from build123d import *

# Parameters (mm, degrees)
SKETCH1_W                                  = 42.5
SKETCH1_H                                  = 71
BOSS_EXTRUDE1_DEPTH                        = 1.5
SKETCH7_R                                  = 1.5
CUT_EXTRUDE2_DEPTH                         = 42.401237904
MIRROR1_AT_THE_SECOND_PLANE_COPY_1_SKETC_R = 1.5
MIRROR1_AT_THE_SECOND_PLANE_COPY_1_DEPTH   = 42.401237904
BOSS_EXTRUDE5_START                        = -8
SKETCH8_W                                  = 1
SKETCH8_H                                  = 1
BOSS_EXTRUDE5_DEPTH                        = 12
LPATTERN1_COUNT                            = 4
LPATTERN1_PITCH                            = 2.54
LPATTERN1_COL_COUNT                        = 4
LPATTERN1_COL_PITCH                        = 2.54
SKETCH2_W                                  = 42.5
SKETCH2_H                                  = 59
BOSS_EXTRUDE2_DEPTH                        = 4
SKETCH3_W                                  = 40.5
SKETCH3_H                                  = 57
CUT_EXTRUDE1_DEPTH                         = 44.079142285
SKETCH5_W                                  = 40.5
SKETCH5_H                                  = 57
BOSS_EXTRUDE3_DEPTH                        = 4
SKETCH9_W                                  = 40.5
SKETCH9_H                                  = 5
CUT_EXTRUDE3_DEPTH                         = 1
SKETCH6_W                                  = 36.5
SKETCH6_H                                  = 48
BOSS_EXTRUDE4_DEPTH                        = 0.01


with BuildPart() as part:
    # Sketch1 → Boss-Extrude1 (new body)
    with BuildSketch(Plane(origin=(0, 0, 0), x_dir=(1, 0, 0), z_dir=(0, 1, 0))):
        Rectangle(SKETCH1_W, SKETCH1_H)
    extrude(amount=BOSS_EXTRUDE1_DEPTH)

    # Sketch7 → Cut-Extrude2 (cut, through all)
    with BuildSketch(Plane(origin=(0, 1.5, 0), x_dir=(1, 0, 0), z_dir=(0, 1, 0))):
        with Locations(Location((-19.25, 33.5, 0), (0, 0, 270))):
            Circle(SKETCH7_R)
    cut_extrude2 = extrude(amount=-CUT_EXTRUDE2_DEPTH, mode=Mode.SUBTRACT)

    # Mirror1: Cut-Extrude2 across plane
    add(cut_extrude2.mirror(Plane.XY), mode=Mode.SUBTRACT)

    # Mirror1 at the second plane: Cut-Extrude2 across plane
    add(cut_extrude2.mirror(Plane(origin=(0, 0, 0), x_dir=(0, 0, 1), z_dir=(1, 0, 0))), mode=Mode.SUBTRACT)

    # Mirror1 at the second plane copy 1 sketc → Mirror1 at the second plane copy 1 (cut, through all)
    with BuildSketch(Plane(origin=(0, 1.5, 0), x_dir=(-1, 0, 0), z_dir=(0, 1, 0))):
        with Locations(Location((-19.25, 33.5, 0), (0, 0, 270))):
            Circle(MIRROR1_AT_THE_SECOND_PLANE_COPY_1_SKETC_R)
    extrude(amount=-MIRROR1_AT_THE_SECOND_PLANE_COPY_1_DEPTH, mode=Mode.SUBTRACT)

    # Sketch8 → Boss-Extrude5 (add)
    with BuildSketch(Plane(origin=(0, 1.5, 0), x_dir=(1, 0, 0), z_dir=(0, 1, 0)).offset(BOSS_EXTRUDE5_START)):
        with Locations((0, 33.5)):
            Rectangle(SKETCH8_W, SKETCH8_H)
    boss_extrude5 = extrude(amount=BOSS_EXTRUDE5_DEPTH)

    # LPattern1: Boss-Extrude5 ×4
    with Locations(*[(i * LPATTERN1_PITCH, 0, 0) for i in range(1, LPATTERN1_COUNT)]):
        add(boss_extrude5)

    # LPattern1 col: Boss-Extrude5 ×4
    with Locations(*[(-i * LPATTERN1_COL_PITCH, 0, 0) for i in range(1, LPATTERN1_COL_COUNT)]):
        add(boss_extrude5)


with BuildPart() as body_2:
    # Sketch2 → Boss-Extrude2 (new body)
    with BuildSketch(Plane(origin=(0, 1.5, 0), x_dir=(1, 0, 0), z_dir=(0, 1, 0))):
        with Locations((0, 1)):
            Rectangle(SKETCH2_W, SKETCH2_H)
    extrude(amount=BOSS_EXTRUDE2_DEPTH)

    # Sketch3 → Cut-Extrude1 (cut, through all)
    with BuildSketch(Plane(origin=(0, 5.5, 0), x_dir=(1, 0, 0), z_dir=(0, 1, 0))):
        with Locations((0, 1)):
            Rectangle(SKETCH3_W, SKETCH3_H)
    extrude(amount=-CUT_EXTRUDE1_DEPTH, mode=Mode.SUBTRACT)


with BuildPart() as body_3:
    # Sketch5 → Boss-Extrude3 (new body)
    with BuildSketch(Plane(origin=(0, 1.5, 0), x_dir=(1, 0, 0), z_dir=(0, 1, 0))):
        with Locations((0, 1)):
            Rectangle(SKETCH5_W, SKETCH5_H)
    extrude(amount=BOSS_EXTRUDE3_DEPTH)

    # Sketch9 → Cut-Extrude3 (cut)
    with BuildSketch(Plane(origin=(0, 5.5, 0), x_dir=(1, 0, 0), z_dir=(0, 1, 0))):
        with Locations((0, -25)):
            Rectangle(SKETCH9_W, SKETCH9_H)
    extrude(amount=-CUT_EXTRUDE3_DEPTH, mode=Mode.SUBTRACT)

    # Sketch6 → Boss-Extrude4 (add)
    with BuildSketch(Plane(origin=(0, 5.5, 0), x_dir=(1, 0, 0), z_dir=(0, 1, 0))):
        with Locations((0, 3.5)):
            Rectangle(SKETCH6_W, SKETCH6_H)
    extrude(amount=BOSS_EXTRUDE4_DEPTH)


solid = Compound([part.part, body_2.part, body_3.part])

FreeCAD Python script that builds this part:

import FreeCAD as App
import Part
import Sketcher
from FreeCAD import Vector


def add_polygon(sketch, points):
    """Adds a closed chain of lines whose ends are joined by coincident constraints."""
    first, n = sketch.GeometryCount, len(points)
    for a, b in zip(points, points[1:] + points[:1]):
        sketch.addGeometry(Part.LineSegment(App.Vector(*a, 0), App.Vector(*b, 0)), False)
    for i in range(n):
        sketch.addConstraint(Sketcher.Constraint("Coincident", first + i, 2, first + (i + 1) % n, 1))

doc = App.newDocument("Part")
body = doc.addObject("PartDesign::Body", "Body")

sketch1 = body.newObject("Sketcher::SketchObject", "Sketch")
sketch1.AttachmentSupport = (doc.getObject("XZ_Plane"), [""])
sketch1.MapMode = "FlatFace"
add_polygon(sketch1, [(-21, -36), (-21, 36), (21, 36), (21, -36)])
sketch1.addConstraint([
    Sketcher.Constraint("Vertical", 0),
    Sketcher.Constraint("Horizontal", 1),
    Sketcher.Constraint("Vertical", 2),
    Sketcher.Constraint("Horizontal", 3),
    Sketcher.Constraint("Symmetric", 0, 2, 2, 2, -1, 1),
    Sketcher.Constraint("DistanceY", 0, 1, 0, 2, 71.0),
    Sketcher.Constraint("DistanceX", 1, 1, 1, 2, 42.5),
])
pad1 = body.newObject("PartDesign::Pad", "Pad")
pad1.Profile = sketch1
pad1.Length = 1.5
pad1.Reversed = True

sketch2 = body.newObject("Sketcher::SketchObject", "Sketch001")
sketch2.AttachmentSupport = (doc.getObject("XZ_Plane"), [""])
sketch2.MapMode = "FlatFace"
sketch2.AttachmentOffset = App.Placement(Vector(0, 0, -1.5), App.Rotation())
sketch2.addGeometry(Part.Circle(Vector(-19.2, -33.5, 0), Vector(0, 0, 1), 1.5), False)
sketch2.addConstraint([
    Sketcher.Constraint("Diameter", 0, 3.0),
    Sketcher.Constraint("DistanceY", 0, 3, -1, 1, 33.5),
    Sketcher.Constraint("DistanceX", 0, 3, -1, 1, 19.25),
])
pocket1 = body.newObject("PartDesign::Pocket", "Pocket")
pocket1.Profile = sketch2
pocket1.Type = "ThroughAll"
pocket1.Reversed = True
doc.recompute()

mirrored = body.newObject("PartDesign::Mirrored", "Mirrored")
mirrored.Originals = [pocket1]
mirrored.MirrorPlane = (doc.getObject("XY_Plane"), [""])
body.Tip = mirrored
doc.recompute()

mirrored2 = body.newObject("PartDesign::Mirrored", "Mirrored001")
mirrored2.Originals = [pocket1]
mirrored2.MirrorPlane = (doc.getObject("YZ_Plane"), [""])
body.Tip = mirrored2

sketch3 = body.newObject("Sketcher::SketchObject", "Sketch002")
sketch3.AttachmentSupport = (doc.getObject("XZ_Plane"), [""])
sketch3.MapMode = "FlatFace"
sketch3.AttachmentOffset = App.Placement(Vector(0, 0, -1.5), App.Rotation())
sketch3.addGeometry(Part.Circle(Vector(19.2, 33.5, 0), Vector(0, 0, 1), 1.5), False)
sketch3.addConstraint([
    Sketcher.Constraint("Diameter", 0, 3.0),
    Sketcher.Constraint("DistanceY", -1, 1, 0, 3, 33.5),
    Sketcher.Constraint("DistanceX", -1, 1, 0, 3, 19.25),
])
pocket2 = body.newObject("PartDesign::Pocket", "Pocket001")
pocket2.Profile = sketch3
pocket2.Type = "ThroughAll"
pocket2.Reversed = True

sketch4 = body.newObject("Sketcher::SketchObject", "Sketch003")
sketch4.AttachmentSupport = (doc.getObject("XZ_Plane"), [""])
sketch4.MapMode = "FlatFace"
sketch4.AttachmentOffset = App.Placement(Vector(0, 0, 6.5), App.Rotation())
add_polygon(sketch4, [(-0.5, -34), (-0.5, -33), (0.5, -33), (0.5, -34)])
sketch4.addConstraint([
    Sketcher.Constraint("Vertical", 0),
    Sketcher.Constraint("Horizontal", 1),
    Sketcher.Constraint("Vertical", 2),
    Sketcher.Constraint("Horizontal", 3),
    Sketcher.Constraint("Equal", 3, 0),
    Sketcher.Constraint("DistanceX", 1, 1, 1, 2, 1.0),
    Sketcher.Constraint("DistanceY", 0, 2, -1, 1, 33.0),
    Sketcher.Constraint("DistanceX", 0, 2, -1, 1, 0.5),
])
pad2 = body.newObject("PartDesign::Pad", "Pad001")
pad2.Profile = sketch4
pad2.Length = 12
pad2.Reversed = True
doc.recompute()

linearpattern = body.newObject("PartDesign::LinearPattern", "LinearPattern")
linearpattern.Originals = [pad2]
linearpattern.Direction = (doc.getObject("X_Axis"), [""])
linearpattern.Mode = "offset"
linearpattern.Offset = 2.54
linearpattern.Occurrences = 4
body.Tip = linearpattern
doc.recompute()

linearpattern2 = body.newObject("PartDesign::LinearPattern", "LinearPattern001")
linearpattern2.Originals = [pad2]
linearpattern2.Direction = (doc.getObject("X_Axis"), [""])
linearpattern2.Mode = "offset"
linearpattern2.Offset = 2.54
linearpattern2.Occurrences = 4
linearpattern2.Reversed = True
body.Tip = linearpattern2
body2 = doc.addObject("PartDesign::Body", "Body001")

sketch5 = body2.newObject("Sketcher::SketchObject", "Sketch004")
sketch5.AttachmentSupport = (doc.getObject("XZ_Plane001"), [""])
sketch5.MapMode = "FlatFace"
sketch5.AttachmentOffset = App.Placement(Vector(0, 0, -1.5), App.Rotation())
add_polygon(sketch5, [(-21, -30), (-21, 28), (21, 28), (21, -30)])
sketch5.addConstraint([
    Sketcher.Constraint("Vertical", 0),
    Sketcher.Constraint("Horizontal", 1),
    Sketcher.Constraint("Vertical", 2),
    Sketcher.Constraint("Horizontal", 3),
    Sketcher.Constraint("DistanceY", 0, 1, 0, 2, 59.0),
    Sketcher.Constraint("DistanceX", 1, 1, 1, 2, 42.5),
    Sketcher.Constraint("DistanceY", -1, 1, 0, 2, 28.5),
    Sketcher.Constraint("DistanceX", 0, 2, -1, 1, 21.25),
])
pad3 = body2.newObject("PartDesign::Pad", "Pad002")
pad3.Profile = sketch5
pad3.Length = 4
pad3.Reversed = True

sketch6 = body2.newObject("Sketcher::SketchObject", "Sketch005")
sketch6.AttachmentSupport = (doc.getObject("XZ_Plane001"), [""])
sketch6.MapMode = "FlatFace"
sketch6.AttachmentOffset = App.Placement(Vector(0, 0, -5.5), App.Rotation())
add_polygon(sketch6, [(-20, -30), (-20, 28), (20, 28), (20, -30)])
sketch6.addConstraint([
    Sketcher.Constraint("Vertical", 0),
    Sketcher.Constraint("Horizontal", 1),
    Sketcher.Constraint("Vertical", 2),
    Sketcher.Constraint("Horizontal", 3),
    Sketcher.Constraint("DistanceY", 0, 1, 0, 2, 57.0),
    Sketcher.Constraint("DistanceX", 1, 1, 1, 2, 40.5),
    Sketcher.Constraint("DistanceY", -1, 1, 0, 2, 27.5),
    Sketcher.Constraint("DistanceX", 0, 2, -1, 1, 20.25),
])
pocket3 = body2.newObject("PartDesign::Pocket", "Pocket002")
pocket3.Profile = sketch6
pocket3.Type = "ThroughAll"
pocket3.Reversed = True
body3 = doc.addObject("PartDesign::Body", "Body002")

sketch7 = body3.newObject("Sketcher::SketchObject", "Sketch006")
sketch7.AttachmentSupport = (doc.getObject("XZ_Plane002"), [""])
sketch7.MapMode = "FlatFace"
sketch7.AttachmentOffset = App.Placement(Vector(0, 0, -1.5), App.Rotation())
add_polygon(sketch7, [(-20, -30), (-20, 28), (20, 28), (20, -30)])
sketch7.addConstraint([
    Sketcher.Constraint("Vertical", 0),
    Sketcher.Constraint("Horizontal", 1),
    Sketcher.Constraint("Vertical", 2),
    Sketcher.Constraint("Horizontal", 3),
    Sketcher.Constraint("DistanceY", 0, 1, 0, 2, 57.0),
    Sketcher.Constraint("DistanceX", 1, 1, 1, 2, 40.5),
    Sketcher.Constraint("DistanceY", -1, 1, 0, 2, 27.5),
    Sketcher.Constraint("DistanceX", 0, 2, -1, 1, 20.25),
])
pad4 = body3.newObject("PartDesign::Pad", "Pad003")
pad4.Profile = sketch7
pad4.Length = 4
pad4.Reversed = True

sketch8 = body3.newObject("Sketcher::SketchObject", "Sketch007")
sketch8.AttachmentSupport = (doc.getObject("XZ_Plane002"), [""])
sketch8.MapMode = "FlatFace"
sketch8.AttachmentOffset = App.Placement(Vector(0, 0, -5.5), App.Rotation())
add_polygon(sketch8, [(-20, 22), (-20, 28), (20, 28), (20, 22)])
sketch8.addConstraint([
    Sketcher.Constraint("Vertical", 0),
    Sketcher.Constraint("Horizontal", 1),
    Sketcher.Constraint("Vertical", 2),
    Sketcher.Constraint("Horizontal", 3),
    Sketcher.Constraint("DistanceY", 0, 1, 0, 2, 5.0),
    Sketcher.Constraint("DistanceX", 1, 1, 1, 2, 40.5),
    Sketcher.Constraint("DistanceY", -1, 1, 0, 2, 27.5),
    Sketcher.Constraint("DistanceX", 0, 2, -1, 1, 20.25),
])
pocket4 = body3.newObject("PartDesign::Pocket", "Pocket003")
pocket4.Profile = sketch8
pocket4.Length = 1
pocket4.Reversed = True

sketch9 = body3.newObject("Sketcher::SketchObject", "Sketch008")
sketch9.AttachmentSupport = (doc.getObject("XZ_Plane002"), [""])
sketch9.MapMode = "FlatFace"
sketch9.AttachmentOffset = App.Placement(Vector(0, 0, -5.5), App.Rotation())
add_polygon(sketch9, [(-18, -28), (-18, 20), (18, 20), (18, -28)])
sketch9.addConstraint([
    Sketcher.Constraint("Vertical", 0),
    Sketcher.Constraint("Horizontal", 1),
    Sketcher.Constraint("Vertical", 2),
    Sketcher.Constraint("Horizontal", 3),
    Sketcher.Constraint("DistanceY", 0, 1, 0, 2, 48.0),
    Sketcher.Constraint("DistanceX", 1, 1, 1, 2, 36.5),
    Sketcher.Constraint("DistanceY", -1, 1, 0, 2, 20.5),
    Sketcher.Constraint("DistanceX", 0, 2, -1, 1, 18.25),
])
pad5 = body3.newObject("PartDesign::Pad", "Pad004")
pad5.Profile = sketch9
pad5.Length = 0.01
pad5.Reversed = True

doc.recompute()
